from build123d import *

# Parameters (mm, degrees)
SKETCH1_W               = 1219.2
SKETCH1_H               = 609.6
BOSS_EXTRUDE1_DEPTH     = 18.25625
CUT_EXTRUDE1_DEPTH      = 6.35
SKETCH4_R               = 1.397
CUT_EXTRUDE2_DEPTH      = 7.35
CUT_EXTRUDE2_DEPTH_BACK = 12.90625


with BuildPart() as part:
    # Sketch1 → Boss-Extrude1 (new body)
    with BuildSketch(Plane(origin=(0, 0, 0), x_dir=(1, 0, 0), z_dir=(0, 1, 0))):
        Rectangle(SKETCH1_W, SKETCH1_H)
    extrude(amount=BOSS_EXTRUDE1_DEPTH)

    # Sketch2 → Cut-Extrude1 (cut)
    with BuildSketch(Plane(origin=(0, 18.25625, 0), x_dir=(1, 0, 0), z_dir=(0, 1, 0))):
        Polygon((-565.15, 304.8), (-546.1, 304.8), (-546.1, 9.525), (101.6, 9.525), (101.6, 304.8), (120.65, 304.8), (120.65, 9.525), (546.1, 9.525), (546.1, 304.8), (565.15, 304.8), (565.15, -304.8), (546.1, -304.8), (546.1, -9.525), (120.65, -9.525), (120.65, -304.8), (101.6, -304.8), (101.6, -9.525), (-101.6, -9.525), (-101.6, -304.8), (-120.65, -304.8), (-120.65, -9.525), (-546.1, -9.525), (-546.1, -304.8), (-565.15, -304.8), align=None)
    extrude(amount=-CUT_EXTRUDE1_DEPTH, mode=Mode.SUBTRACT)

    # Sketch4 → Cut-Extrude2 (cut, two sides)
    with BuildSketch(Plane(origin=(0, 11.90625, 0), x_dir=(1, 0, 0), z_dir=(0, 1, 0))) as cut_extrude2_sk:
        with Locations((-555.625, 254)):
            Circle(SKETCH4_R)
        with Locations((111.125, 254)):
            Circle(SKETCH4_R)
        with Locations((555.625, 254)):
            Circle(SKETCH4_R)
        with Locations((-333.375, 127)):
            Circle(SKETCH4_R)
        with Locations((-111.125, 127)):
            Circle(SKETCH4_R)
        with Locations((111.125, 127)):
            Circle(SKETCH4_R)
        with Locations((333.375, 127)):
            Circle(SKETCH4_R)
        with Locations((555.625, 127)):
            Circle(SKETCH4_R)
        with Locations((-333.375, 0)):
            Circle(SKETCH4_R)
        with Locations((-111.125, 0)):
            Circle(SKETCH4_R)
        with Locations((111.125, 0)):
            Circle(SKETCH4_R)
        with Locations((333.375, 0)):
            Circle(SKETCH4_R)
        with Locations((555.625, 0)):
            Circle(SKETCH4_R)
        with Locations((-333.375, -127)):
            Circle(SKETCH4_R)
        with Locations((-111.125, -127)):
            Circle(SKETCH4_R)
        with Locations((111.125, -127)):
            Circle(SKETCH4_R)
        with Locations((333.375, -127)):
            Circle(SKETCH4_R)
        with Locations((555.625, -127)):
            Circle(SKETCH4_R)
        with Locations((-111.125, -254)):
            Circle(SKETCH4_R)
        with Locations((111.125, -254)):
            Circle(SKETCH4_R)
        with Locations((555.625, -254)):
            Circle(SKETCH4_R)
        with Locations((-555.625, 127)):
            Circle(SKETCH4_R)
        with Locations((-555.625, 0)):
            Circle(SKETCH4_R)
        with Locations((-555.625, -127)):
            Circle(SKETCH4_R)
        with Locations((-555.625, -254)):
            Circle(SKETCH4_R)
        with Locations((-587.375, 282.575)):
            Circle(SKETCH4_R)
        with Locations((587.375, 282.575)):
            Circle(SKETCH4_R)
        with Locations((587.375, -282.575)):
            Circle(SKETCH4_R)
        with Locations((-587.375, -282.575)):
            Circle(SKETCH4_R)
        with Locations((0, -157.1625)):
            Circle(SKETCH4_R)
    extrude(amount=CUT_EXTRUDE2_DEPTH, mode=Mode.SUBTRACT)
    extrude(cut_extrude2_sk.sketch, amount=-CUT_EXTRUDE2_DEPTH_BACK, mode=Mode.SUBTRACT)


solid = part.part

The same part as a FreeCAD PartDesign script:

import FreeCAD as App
import Part
import Sketcher
from FreeCAD import Vector
Q = App.Units.Quantity


def add_polygon(sketch, points):
    """Adds a closed chain of lines whose ends are joined by coincident constraints."""
    first, n = sketch.GeometryCount, len(points)
    for a, b in zip(points, points[1:] + points[:1]):
        sketch.addGeometry(Part.LineSegment(App.Vector(*a, 0), App.Vector(*b, 0)), False)
    for i in range(n):
        sketch.addConstraint(Sketcher.Constraint("Coincident", first + i, 2, first + (i + 1) % n, 1))

doc = App.newDocument("Part")
params = doc.addObject("Spreadsheet::Sheet", "Params")
for row, (alias, value) in enumerate([
    ("sketch1_width", "48 in"),
    ("sketch1_height", "24 in"),
    ("pad1_length", "0.71875 in"),
    ("sketch2_width", "8 in"),
    ("sketch2_height", "24 in"),
    ("sketch2_width2", "25.5 in"),
    ("sketch2_width3", "0.75 in"),
    ("sketch2_height2", "11.625 in"),
    ("pocket1_length", "0.25 in"),
    ("sketch3_diameter", "0.11 in"),
], start=1):
    params.set(f"A{row}", alias)
    params.set(f"B{row}", "=" + value)
    params.setAlias(f"B{row}", alias)

body = doc.addObject("PartDesign::Body", "Body")

# Sketch on XZ plane
sketch1 = doc.addObject("Sketcher::SketchObject", "Sketch")
body.addObject(sketch1)
sketch1.AttachmentSupport = (doc.XZ_Plane, [""])
sketch1.MapMode = "FlatFace"
add_polygon(sketch1, [(-610, -305), (-610, 305), (610, 305), (610, -305)])  # lines 0-3
sketch1.addConstraint([
    Sketcher.Constraint("Vertical", 0),
    Sketcher.Constraint("Horizontal", 1),
    Sketcher.Constraint("Vertical", 2),
    Sketcher.Constraint("Horizontal", 3),
    Sketcher.Constraint("Symmetric", 0, 2, 2, 2, -1, 1),
    Sketcher.Constraint("DistanceX", 1, 1, 1, 2, Q("48 in")),
    Sketcher.Constraint("DistanceY", 0, 1, 0, 2, Q("24 in")),
])
sketch1.setExpression("Constraints[9]", "Params.sketch1_width")
sketch1.setExpression("Constraints[10]", "Params.sketch1_height")
pad1 = doc.addObject("PartDesign::Pad", "Pad")
body.addObject(pad1)
pad1.Profile = sketch1
pad1.setExpression("Length", "Params.pad1_length")
pad1.Reversed = True

# Sketch on XZ plane
sketch2 = doc.addObject("Sketcher::SketchObject", "Sketch001")
body.addObject(sketch2)
sketch2.AttachmentSupport = (doc.XZ_Plane, [""])
sketch2.MapMode = "FlatFace"
sketch2.AttachmentOffset = App.Placement(Vector(0, 0, -0.71875 * 25.4), App.Rotation())
add_polygon(sketch2, [(-546, -305), (-565, -305), (-565, 305), (-546, 305), (-546, 10), (-121, 10), (-121, 305), (-102, 305), (-102, 10), (102, 10), (102, 305), (121, 305), (121, 10), (546, 10), (546, 305), (565, 305), (565, -305), (546, -305), (546, -10), (121, -10), (121, -305), (102, -305), (102, -10), (-546, -10)])  # lines 0-23
sketch2.addConstraint([
    Sketcher.Constraint("Horizontal", 0),
    Sketcher.Constraint("Vertical", 1),
    Sketcher.Constraint("Horizontal", 2),
    Sketcher.Constraint("Vertical", 3),
    Sketcher.Constraint("Horizontal", 4),
    Sketcher.Constraint("Vertical", 5),
    Sketcher.Constraint("Horizontal", 6),
    Sketcher.Constraint("Vertical", 7),
    Sketcher.Constraint("Horizontal", 8),
    Sketcher.Constraint("Vertical", 9),
    Sketcher.Constraint("Horizontal", 10),
    Sketcher.Constraint("Vertical", 11),
    Sketcher.Constraint("Horizontal", 12),
    Sketcher.Constraint("Vertical", 13),
    Sketcher.Constraint("Horizontal", 14),
    Sketcher.Constraint("Vertical", 15),
    Sketcher.Constraint("Horizontal", 16),
    Sketcher.Constraint("Vertical", 17),
    Sketcher.Constraint("Horizontal", 18),
    Sketcher.Constraint("Vertical", 19),
    Sketcher.Constraint("Horizontal", 20),
    Sketcher.Constraint("Vertical", 21),
    Sketcher.Constraint("Horizontal", 22),
    Sketcher.Constraint("Vertical", 23),
    Sketcher.Constraint("Symmetric", 0, 2, 14, 2, -1, 1),
    Sketcher.Constraint("Symmetric", 2, 2, 16, 2, -1, 1),
    Sketcher.Constraint("Symmetric", 4, 2, 18, 2, -1, 1),
    Sketcher.Constraint("Symmetric", 6, 2, 20, 2, -1, 1),
    Sketcher.Constraint("Symmetric", 12, 2, 22, 2, -1, 1),
    Sketcher.Constraint("Symmetric", 6, 2, 9, 2, -2),
    Sketcher.Constraint("Symmetric", 4, 2, 11, 2, -2),
    Sketcher.Constraint("Symmetric", 2, 2, 13, 2, -2),
    Sketcher.Constraint("Horizontal", 2, 2, 5, 2),
    Sketcher.Constraint("Horizontal", 4, 2, 7, 2),
    Sketcher.Constraint("Equal", 2, 6),
    Sketcher.Constraint("DistanceX", 8, 1, 8, 2, Q("8 in")),
    Sketcher.Constraint("DistanceY", 1, 1, 1, 2, Q("24 in")),
    Sketcher.Constraint("DistanceX", 22, 2, 22, 1, Q("25.5 in")),
    Sketcher.Constraint("DistanceX", 0, 2, 0, 1, Q("0.75 in")),
    Sketcher.Constraint("DistanceY", 3, 2, 3, 1, Q("11.625 in")),
])
sketch2.setExpression("Constraints[59]", "Params.sketch2_width")
sketch2.setExpression("Constraints[60]", "Params.sketch2_height")
sketch2.setExpression("Constraints[61]", "Params.sketch2_width2")
sketch2.setExpression("Constraints[62]", "Params.sketch2_width3")
sketch2.setExpression("Constraints[63]", "Params.sketch2_height2")
pocket1 = doc.addObject("PartDesign::Pocket", "Pocket")
body.addObject(pocket1)
pocket1.Profile = sketch2
pocket1.setExpression("Length", "Params.pocket1_length")
pocket1.Reversed = True

# Sketch on XZ plane
sketch3 = doc.addObject("Sketcher::SketchObject", "Sketch002")
body.addObject(sketch3)
sketch3.AttachmentSupport = (doc.XZ_Plane, [""])
sketch3.MapMode = "FlatFace"
sketch3.AttachmentOffset = App.Placement(Vector(0, 0, -0.46875 * 25.4), App.Rotation())
sketch3.addGeometry([
    Part.Circle(Vector(-555.6, -254, 0), Vector(0, 0, 1), 1.4),  # 0
    Part.Circle(Vector(111.1, -254, 0), Vector(0, 0, 1), 1.4),  # 1
    Part.Circle(Vector(555.6, -254, 0), Vector(0, 0, 1), 1.4),  # 2
    Part.Circle(Vector(-333.4, -127, 0), Vector(0, 0, 1), 1.4),  # 3
    Part.Circle(Vector(-111.1, -127, 0), Vector(0, 0, 1), 1.4),  # 4
    Part.Circle(Vector(111.1, -127, 0), Vector(0, 0, 1), 1.4),  # 5
    Part.Circle(Vector(333.4, -127, 0), Vector(0, 0, 1), 1.4),  # 6
    Part.Circle(Vector(555.6, -127, 0), Vector(0, 0, 1), 1.4),  # 7
    Part.Circle(Vector(-333.4, 0, 0), Vector(0, 0, 1), 1.4),  # 8
    Part.Circle(Vector(-111.1, 0, 0), Vector(0, 0, 1), 1.4),  # 9
    Part.Circle(Vector(111.1, 0, 0), Vector(0, 0, 1), 1.4),  # 10
    Part.Circle(Vector(333.4, 0, 0), Vector(0, 0, 1), 1.4),  # 11
    Part.Circle(Vector(555.6, 0, 0), Vector(0, 0, 1), 1.4),  # 12
    Part.Circle(Vector(-333.4, 127, 0), Vector(0, 0, 1), 1.4),  # 13
    Part.Circle(Vector(-111.1, 127, 0), Vector(0, 0, 1), 1.4),  # 14
    Part.Circle(Vector(111.1, 127, 0), Vector(0, 0, 1), 1.4),  # 15
    Part.Circle(Vector(333.4, 127, 0), Vector(0, 0, 1), 1.4),  # 16
    Part.Circle(Vector(555.6, 127, 0), Vector(0, 0, 1), 1.4),  # 17
    Part.Circle(Vector(-111.1, 254, 0), Vector(0, 0, 1), 1.4),  # 18
    Part.Circle(Vector(111.1, 254, 0), Vector(0, 0, 1), 1.4),  # 19
    Part.Circle(Vector(555.6, 254, 0), Vector(0, 0, 1), 1.4),  # 20
    Part.Circle(Vector(-555.6, -127, 0), Vector(0, 0, 1), 1.4),  # 21
    Part.Circle(Vector(-555.6, 0, 0), Vector(0, 0, 1), 1.4),  # 22
    Part.Circle(Vector(-555.6, 127, 0), Vector(0, 0, 1), 1.4),  # 23
    Part.Circle(Vector(-555.6, 254, 0), Vector(0, 0, 1), 1.4),  # 24
    Part.Circle(Vector(-587.4, -282.6, 0), Vector(0, 0, 1), 1.4),  # 25
    Part.Circle(Vector(587.4, -282.6, 0), Vector(0, 0, 1), 1.4),  # 26
    Part.Circle(Vector(587.4, 282.6, 0), Vector(0, 0, 1), 1.4),  # 27
    Part.Circle(Vector(-587.4, 282.6, 0), Vector(0, 0, 1), 1.4),  # 28
    Part.Circle(Vector(0, 157.2, 0), Vector(0, 0, 1), 1.4),  # 29
], False)
sketch3.addConstraint([
    Sketcher.Constraint("Equal", 0, 1),
    Sketcher.Constraint("Equal", 1, 2),
    Sketcher.Constraint("Equal", 2, 3),
    Sketcher.Constraint("Equal", 3, 4),
    Sketcher.Constraint("Equal", 4, 5),
    Sketcher.Constraint("Equal", 5, 6),
    Sketcher.Constraint("Equal", 6, 7),
    Sketcher.Constraint("Equal", 7, 8),
    Sketcher.Constraint("Equal", 8, 9),
    Sketcher.Constraint("Equal", 9, 10),
    Sketcher.Constraint("Equal", 10, 11),
    Sketcher.Constraint("Equal", 11, 12),
    Sketcher.Constraint("Equal", 12, 13),
    Sketcher.Constraint("Equal", 13, 14),
    Sketcher.Constraint("Equal", 14, 15),
    Sketcher.Constraint("Equal", 15, 16),
    Sketcher.Constraint("Equal", 16, 17),
    Sketcher.Constraint("Equal", 17, 18),
    Sketcher.Constraint("Equal", 18, 19),
    Sketcher.Constraint("Equal", 19, 20),
    Sketcher.Constraint("Equal", 20, 21),
    Sketcher.Constraint("Equal", 21, 22),
    Sketcher.Constraint("Equal", 22, 23),
    Sketcher.Constraint("Equal", 23, 24),
    Sketcher.Constraint("Equal", 24, 25),
    Sketcher.Constraint("Equal", 25, 26),
    Sketcher.Constraint("Equal", 26, 27),
    Sketcher.Constraint("Equal", 27, 28),
    Sketcher.Constraint("Equal", 28, 29),
    Sketcher.Constraint("Symmetric", 9, 3, 10, 3, -1, 1),
    Sketcher.Constraint("Symmetric", 8, 3, 11, 3, -1, 1),
    Sketcher.Constraint("Symmetric", 6, 3, 13, 3, -1, 1),
    Sketcher.Constraint("Symmetric", 5, 3, 14, 3, -1, 1),
    Sketcher.Constraint("Symmetric", 4, 3, 15, 3, -1, 1),
    Sketcher.Constraint("Symmetric", 3, 3, 16, 3, -1, 1),
    Sketcher.Constraint("Symmetric", 1, 3, 18, 3, -1, 1),
    Sketcher.Constraint("Symmetric", 0, 3, 20, 3, -1, 1),
    Sketcher.Constraint("Symmetric", 17, 3, 21, 3, -1, 1),
    Sketcher.Constraint("Symmetric", 12, 3, 22, 3, -1, 1),
    Sketcher.Constraint("Symmetric", 7, 3, 23, 3, -1, 1),
    Sketcher.Constraint("Symmetric", 2, 3, 24, 3, -1, 1),
    Sketcher.Constraint("Symmetric", 25, 3, 27, 3, -1, 1),
    Sketcher.Constraint("Symmetric", 26, 3, 28, 3, -1, 1),
    Sketcher.Constraint("Symmetric", 0, 3, 2, 3, -2),
    Sketcher.Constraint("Symmetric", 4, 3, 5, 3, -2),
    Sketcher.Constraint("Symmetric", 3, 3, 6, 3, -2),
    Sketcher.Constraint("Symmetric", 18, 3, 19, 3, -2),
    Sketcher.Constraint("Symmetric", 7, 3, 21, 3, -2),
    Sketcher.Constraint("Symmetric", 25, 3, 26, 3, -2),
    Sketcher.Constraint("PointOnObject", 8, 3, -1),
    Sketcher.Constraint("PointOnObject", 9, 3, -1),
    Sketcher.Constraint("PointOnObject", 12, 3, -1),
    Sketcher.Constraint("PointOnObject", 29, 3, -2),
    Sketcher.Constraint("Horizontal", 0, 3, 1, 3),
    Sketcher.Constraint("Horizontal", 3, 3, 4, 3),
    Sketcher.Constraint("Horizontal", 6, 3, 7, 3),
    Sketcher.Constraint("Vertical", 1, 3, 5, 3),
    Sketcher.Constraint("Vertical", 2, 3, 7, 3),
    Sketcher.Constraint("Vertical", 3, 3, 8, 3),
    Sketcher.Constraint("Vertical", 4, 3, 9, 3),
    Sketcher.Constraint("Vertical", 7, 3, 12, 3),
    Sketcher.Constraint("Diameter", 0, Q("0.11 in")),
    Sketcher.Constraint("DistanceY", 0, 3, -1, 1, Q("10 in")),
    Sketcher.Constraint("DistanceY", 3, 3, -1, 1, Q("5 in")),
    Sketcher.Constraint("DistanceX", 3, 3, 2, 3, Q("35 in")),
    Sketcher.Constraint("DistanceX", 25, 3, 3, 3, Q("10 in")),
    Sketcher.Constraint("DistanceX", 1, 3, 2, 3, Q("17.5 in")),
    Sketcher.Constraint("DistanceX", 0, 3, 1, 3, Q("26.25 in")),
    Sketcher.Constraint("DistanceY", 25, 3, -1, 1, Q("11.125 in")),
    Sketcher.Constraint("DistanceY", -1, 1, 29, 3, Q("6.1875 in")),
])
sketch3.setExpression("Constraints[61]", "Params.sketch3_diameter")
pocket2 = doc.addObject("PartDesign::Pocket", "Pocket001")
body.addObject(pocket2)
pocket2.Profile = sketch3
pocket2.Type = "ThroughAll"
pocket2.Midplane = True

doc.recompute()
